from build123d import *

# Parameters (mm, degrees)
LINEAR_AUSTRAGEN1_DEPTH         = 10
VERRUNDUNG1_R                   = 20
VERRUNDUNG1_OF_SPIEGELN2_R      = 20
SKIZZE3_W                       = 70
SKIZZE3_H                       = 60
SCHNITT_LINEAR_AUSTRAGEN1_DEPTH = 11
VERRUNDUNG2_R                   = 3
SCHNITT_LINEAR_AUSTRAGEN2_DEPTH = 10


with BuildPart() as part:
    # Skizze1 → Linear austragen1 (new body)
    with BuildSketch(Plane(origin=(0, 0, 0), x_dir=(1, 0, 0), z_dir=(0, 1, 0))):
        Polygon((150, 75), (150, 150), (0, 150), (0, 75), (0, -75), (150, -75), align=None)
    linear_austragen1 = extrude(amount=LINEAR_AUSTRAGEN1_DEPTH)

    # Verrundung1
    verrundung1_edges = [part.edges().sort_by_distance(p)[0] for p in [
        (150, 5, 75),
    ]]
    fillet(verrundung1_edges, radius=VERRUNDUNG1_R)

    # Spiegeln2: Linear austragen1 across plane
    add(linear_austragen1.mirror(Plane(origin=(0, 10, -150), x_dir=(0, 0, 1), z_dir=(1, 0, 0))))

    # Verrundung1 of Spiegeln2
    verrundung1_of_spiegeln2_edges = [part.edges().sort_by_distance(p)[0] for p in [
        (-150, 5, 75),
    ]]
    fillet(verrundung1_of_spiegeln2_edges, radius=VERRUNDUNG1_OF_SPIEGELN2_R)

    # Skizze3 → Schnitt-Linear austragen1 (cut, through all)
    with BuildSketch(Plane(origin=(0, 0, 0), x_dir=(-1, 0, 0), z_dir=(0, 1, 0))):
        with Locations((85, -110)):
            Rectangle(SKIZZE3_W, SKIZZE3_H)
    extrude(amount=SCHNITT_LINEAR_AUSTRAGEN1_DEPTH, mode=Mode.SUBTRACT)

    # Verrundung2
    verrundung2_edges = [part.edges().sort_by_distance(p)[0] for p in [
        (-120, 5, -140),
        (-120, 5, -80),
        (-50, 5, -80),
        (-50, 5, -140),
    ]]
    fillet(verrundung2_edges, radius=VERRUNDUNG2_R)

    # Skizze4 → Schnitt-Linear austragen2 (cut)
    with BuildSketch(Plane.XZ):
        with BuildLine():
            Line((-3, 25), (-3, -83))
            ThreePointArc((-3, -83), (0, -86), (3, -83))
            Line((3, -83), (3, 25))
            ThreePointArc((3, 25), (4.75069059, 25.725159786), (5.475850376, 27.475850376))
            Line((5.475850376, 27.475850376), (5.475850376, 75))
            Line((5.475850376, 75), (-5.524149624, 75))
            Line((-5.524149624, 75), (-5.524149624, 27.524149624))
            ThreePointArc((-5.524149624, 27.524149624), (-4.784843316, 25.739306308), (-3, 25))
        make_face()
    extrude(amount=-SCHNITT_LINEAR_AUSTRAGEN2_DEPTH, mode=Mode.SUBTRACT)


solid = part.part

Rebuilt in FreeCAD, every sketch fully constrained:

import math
import FreeCAD as App
import Part
import Sketcher

V = App.Vector
Q = App.Units.Quantity


def edges_at(feature, points):
    """Names of the edges that pass closest to the given points."""
    edges = feature.Shape.Edges
    near = lambda p: min(range(len(edges)), key=lambda i: edges[i].distToShape(Part.Vertex(*p))[0])
    return sorted({f"Edge{near(p) + 1}" for p in points})


def add_polygon(sketch, points):
    """Adds a closed chain of lines whose ends are joined by coincident constraints."""
    first, n = sketch.GeometryCount, len(points)
    for a, b in zip(points, points[1:] + points[:1]):
        sketch.addGeometry(Part.LineSegment(App.Vector(*a, 0), App.Vector(*b, 0)), False)
    for i in range(n):
        sketch.addConstraint(Sketcher.Constraint("Coincident", first + i, 2, first + (i + 1) % n, 1))

doc = App.newDocument("Part")
body = doc.addObject("PartDesign::Body", "Body")

sketch1 = doc.addObject("Sketcher::SketchObject", "Sketch")
body.addObject(sketch1)
sketch1.AttachmentSupport = (doc.XZ_Plane, [""])
sketch1.MapMode = "FlatFace"
add_polygon(sketch1, [(150, -150), (0, -150), (0, 75), (150, 75)])
sketch1.addConstraint(Sketcher.Constraint("Horizontal", 0))
sketch1.addConstraint(Sketcher.Constraint("Vertical", 1))
sketch1.addConstraint(Sketcher.Constraint("Horizontal", 2))
sketch1.addConstraint(Sketcher.Constraint("Vertical", 3))
sketch1.addConstraint(Sketcher.Constraint("PointOnObject", 0, 2, -2))
sketch1.addConstraint(Sketcher.Constraint("DistanceX", 0, 2, 0, 1, Q("150 mm")))
sketch1.addConstraint(Sketcher.Constraint("DistanceY", 1, 1, 1, 2, Q("225 mm")))
sketch1.addConstraint(Sketcher.Constraint("DistanceY", 0, 2, -1, 1, Q("150 mm")))
pad1 = doc.addObject("PartDesign::Pad", "Pad")
body.addObject(pad1)
pad1.Profile = sketch1
pad1.Length = 10
pad1.Reversed = True
doc.recompute()

fillet = doc.addObject("PartDesign::Fillet", "Fillet")
body.addObject(fillet)
fillet.Base = (pad1, edges_at(pad1, [(150, 5, 75)]))
fillet.Radius = 20
doc.recompute()

mirrored = doc.addObject("PartDesign::Mirrored", "Mirrored")
body.addObject(mirrored)
mirrored.Originals = [pad1]
mirrored.MirrorPlane = (doc.YZ_Plane, [""])
body.Tip = mirrored
doc.recompute()

fillet2 = doc.addObject("PartDesign::Fillet", "Fillet001")
body.addObject(fillet2)
fillet2.Base = (mirrored, edges_at(mirrored, [(-150, 5, 75)]))
fillet2.Radius = 20

sketch2 = doc.addObject("Sketcher::SketchObject", "Sketch001")
body.addObject(sketch2)
sketch2.AttachmentSupport = (doc.XZ_Plane, [""])
sketch2.MapMode = "FlatFace"
add_polygon(sketch2, [(-50, -80), (-50, -140), (-120, -140), (-120, -80)])
sketch2.addConstraint(Sketcher.Constraint("Vertical", 0))
sketch2.addConstraint(Sketcher.Constraint("Horizontal", 1))
sketch2.addConstraint(Sketcher.Constraint("Vertical", 2))
sketch2.addConstraint(Sketcher.Constraint("Horizontal", 3))
sketch2.addConstraint(Sketcher.Constraint("DistanceX", 1, 2, 1, 1, Q("70 mm")))
sketch2.addConstraint(Sketcher.Constraint("DistanceY", 0, 2, 0, 1, Q("60 mm")))
sketch2.addConstraint(Sketcher.Constraint("DistanceX", 0, 2, -1, 1, Q("50 mm")))
sketch2.addConstraint(Sketcher.Constraint("DistanceY", 0, 2, -1, 1, Q("140 mm")))
pocket1 = doc.addObject("PartDesign::Pocket", "Pocket")
body.addObject(pocket1)
pocket1.Profile = sketch2
pocket1.Type = "ThroughAll"
doc.recompute()

fillet3 = doc.addObject("PartDesign::Fillet", "Fillet002")
body.addObject(fillet3)
fillet3.Base = (pocket1, edges_at(pocket1, [
    (-120, 5, -140),
    (-120, 5, -80),
    (-50, 5, -80),
    (-50, 5, -140),
]))
fillet3.Radius = 3

sketch3 = doc.addObject("Sketcher::SketchObject", "Sketch002")
body.addObject(sketch3)
sketch3.AttachmentSupport = (doc.XZ_Plane, [""])
sketch3.MapMode = "FlatFace"
sketch3.addGeometry(Part.LineSegment(V(-3, 25, 0), V(-3, -83, 0)), False)
sketch3.addGeometry(Part.ArcOfCircle(Part.Circle(V(0, -83, 0), V(0, 0, 1), 3), math.radians(180), math.radians(360)), False)
sketch3.addGeometry(Part.LineSegment(V(3, -83, 0), V(3, 25, 0)), False)
sketch3.addGeometry(Part.ArcOfCircle(Part.Circle(V(3, 27.47585, 0), V(0, 0, 1), 2.47585), math.radians(-90), math.radians(0)), False)
sketch3.addGeometry(Part.LineSegment(V(5.47585, 27.47585, 0), V(5.47585, 75, 0)), False)
sketch3.addGeometry(Part.LineSegment(V(5.47585, 75, 0), V(-5.52415, 75, 0)), False)
sketch3.addGeometry(Part.LineSegment(V(-5.52415, 75, 0), V(-5.52415, 27.52415, 0)), False)
sketch3.addGeometry(Part.ArcOfCircle(Part.Circle(V(-3, 27.52415, 0), V(0, 0, 1), 2.52415), math.radians(180), math.radians(270)), False)
sketch3.addConstraint(Sketcher.Constraint("Tangent", 0, 2, 1, 1))
sketch3.addConstraint(Sketcher.Constraint("Tangent", 1, 2, 2, 1))
sketch3.addConstraint(Sketcher.Constraint("Coincident", 2, 2, 3, 1))
sketch3.addConstraint(Sketcher.Constraint("Tangent", 3, 2, 4, 1))
sketch3.addConstraint(Sketcher.Constraint("Coincident", 4, 2, 5, 1))
sketch3.addConstraint(Sketcher.Constraint("Coincident", 5, 2, 6, 1))
sketch3.addConstraint(Sketcher.Constraint("Tangent", 6, 2, 7, 1))
sketch3.addConstraint(Sketcher.Constraint("Coincident", 7, 2, 0, 1))
sketch3.addConstraint(Sketcher.Constraint("Vertical", 0))
sketch3.addConstraint(Sketcher.Constraint("Vertical", 2))
sketch3.addConstraint(Sketcher.Constraint("Vertical", 4))
sketch3.addConstraint(Sketcher.Constraint("Horizontal", 5))
sketch3.addConstraint(Sketcher.Constraint("Vertical", 6))
sketch3.addConstraint(Sketcher.Constraint("Symmetric", 2, 2, 7, 2, -2))
sketch3.addConstraint(Sketcher.Constraint("Vertical", 7, 3, 0, 2))
sketch3.addConstraint(Sketcher.Constraint("Vertical", 3, 3, 1, 2))
sketch3.addConstraint(Sketcher.Constraint("Radius", 1, Q("3 mm")))
sketch3.addConstraint(Sketcher.Constraint("DistanceX", 5, 2, 5, 1, Q("11 mm")))
sketch3.addConstraint(Sketcher.Constraint("DistanceY", 0, 2, 0, 1, Q("108 mm")))
sketch3.addConstraint(Sketcher.Constraint("DistanceY", 1, 3, -1, 1, Q("83 mm")))
sketch3.addConstraint(Sketcher.Constraint("DistanceY", -1, 1, 4, 2, Q("75 mm")))
sketch3.addConstraint(Sketcher.Constraint("Radius", 3, Q("2.47585 mm")))
pocket2 = doc.addObject("PartDesign::Pocket", "Pocket001")
body.addObject(pocket2)
pocket2.Profile = sketch3
pocket2.Length = 10

doc.recompute()
